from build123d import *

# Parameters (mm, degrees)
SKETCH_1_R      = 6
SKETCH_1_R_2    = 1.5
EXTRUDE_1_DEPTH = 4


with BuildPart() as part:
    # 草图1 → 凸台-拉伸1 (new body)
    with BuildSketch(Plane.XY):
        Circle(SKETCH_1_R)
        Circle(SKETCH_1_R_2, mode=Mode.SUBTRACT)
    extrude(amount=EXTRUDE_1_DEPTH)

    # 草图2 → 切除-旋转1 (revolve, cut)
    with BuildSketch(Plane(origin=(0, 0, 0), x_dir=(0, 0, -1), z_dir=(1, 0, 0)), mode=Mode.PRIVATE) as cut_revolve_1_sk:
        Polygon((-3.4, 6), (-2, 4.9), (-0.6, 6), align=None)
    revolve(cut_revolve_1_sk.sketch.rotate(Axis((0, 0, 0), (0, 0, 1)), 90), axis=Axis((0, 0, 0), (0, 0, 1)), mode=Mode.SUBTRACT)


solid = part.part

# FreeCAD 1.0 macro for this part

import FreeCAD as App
import Part
import Sketcher

V = App.Vector
Q = App.Units.Quantity


def add_polygon(sketch, points):
    """Adds a closed chain of lines whose ends are joined by coincident constraints."""
    first, n = sketch.GeometryCount, len(points)
    for a, b in zip(points, points[1:] + points[:1]):
        sketch.addGeometry(Part.LineSegment(App.Vector(*a, 0), App.Vector(*b, 0)), False)
    for i in range(n):
        sketch.addConstraint(Sketcher.Constraint("Coincident", first + i, 2, first + (i + 1) % n, 1))

doc = App.newDocument("Part")
params = doc.addObject("Spreadsheet::Sheet", "Params")
for row, (alias, value) in enumerate([
    ("sketch1_diameter", "12 mm"),
    ("sketch1_diameter2", "3 mm"),
    ("pad1_length", "4 mm"),
    ("sketch2_height", "2.8 mm"),
    ("groove_angle", "360 deg"),
], start=1):
    params.set(f"A{row}", alias)
    params.set(f"B{row}", "=" + value)
    params.setAlias(f"B{row}", alias)

body = doc.addObject("PartDesign::Body", "Body")

# Sketch on XY plane
sketch1 = body.newObject("Sketcher::SketchObject", "Sketch")
sketch1.AttachmentSupport = (doc.getObject("XY_Plane"), [""])
sketch1.MapMode = "FlatFace"
sketch1.addGeometry(Part.Circle(V(0, 0, 0), V(0, 0, 1), 6), False)
sketch1.addGeometry(Part.Circle(V(0, 0, 0), V(0, 0, 1), 1.5), False)
sketch1.addConstraint(Sketcher.Constraint("Coincident", 0, 3, -1, 1))
sketch1.addConstraint(Sketcher.Constraint("Coincident", 1, 3, -1, 1))
sketch1.addConstraint(Sketcher.Constraint("Diameter", 0, Q("12 mm")))
sketch1.addConstraint(Sketcher.Constraint("Diameter", 1, Q("3 mm")))
sketch1.setExpression("Constraints[2]", "Params.sketch1_diameter")
sketch1.setExpression("Constraints[3]", "Params.sketch1_diameter2")
pad1 = body.newObject("PartDesign::Pad", "Pad")
pad1.Profile = sketch1
pad1.setExpression("Length", "Params.pad1_length")

# Sketch on YZ plane
sketch2 = body.newObject("Sketcher::SketchObject", "Sketch001")
sketch2.AttachmentSupport = (doc.getObject("YZ_Plane"), [""])
sketch2.MapMode = "FlatFace"
add_polygon(sketch2, [(6, 3.4), (4.9, 2), (6, 0.6)])  # lines 0-2
sketch2.addConstraint(Sketcher.Constraint("Vertical", 2))
sketch2.addConstraint(Sketcher.Constraint("Equal", 0, 1))
sketch2.addConstraint(Sketcher.Constraint("DistanceY", 2, 1, 2, 2, Q("2.8 mm")))
sketch2.addConstraint(Sketcher.Constraint("DistanceY", -1, 1, 0, 2, Q("2 mm")))
sketch2.addConstraint(Sketcher.Constraint("DistanceX", -1, 1, 1, 2, Q("6 mm")))
sketch2.addConstraint(Sketcher.Constraint("DistanceX", -1, 1, 0, 2, Q("4.9 mm")))
sketch2.setExpression("Constraints[5]", "Params.sketch2_height")
groove = body.newObject("PartDesign::Groove", "Groove")
groove.Profile = sketch2
groove.ReferenceAxis = (sketch2, ["V_Axis"])
groove.setExpression("Angle", "Params.groove_angle")

doc.recompute()
